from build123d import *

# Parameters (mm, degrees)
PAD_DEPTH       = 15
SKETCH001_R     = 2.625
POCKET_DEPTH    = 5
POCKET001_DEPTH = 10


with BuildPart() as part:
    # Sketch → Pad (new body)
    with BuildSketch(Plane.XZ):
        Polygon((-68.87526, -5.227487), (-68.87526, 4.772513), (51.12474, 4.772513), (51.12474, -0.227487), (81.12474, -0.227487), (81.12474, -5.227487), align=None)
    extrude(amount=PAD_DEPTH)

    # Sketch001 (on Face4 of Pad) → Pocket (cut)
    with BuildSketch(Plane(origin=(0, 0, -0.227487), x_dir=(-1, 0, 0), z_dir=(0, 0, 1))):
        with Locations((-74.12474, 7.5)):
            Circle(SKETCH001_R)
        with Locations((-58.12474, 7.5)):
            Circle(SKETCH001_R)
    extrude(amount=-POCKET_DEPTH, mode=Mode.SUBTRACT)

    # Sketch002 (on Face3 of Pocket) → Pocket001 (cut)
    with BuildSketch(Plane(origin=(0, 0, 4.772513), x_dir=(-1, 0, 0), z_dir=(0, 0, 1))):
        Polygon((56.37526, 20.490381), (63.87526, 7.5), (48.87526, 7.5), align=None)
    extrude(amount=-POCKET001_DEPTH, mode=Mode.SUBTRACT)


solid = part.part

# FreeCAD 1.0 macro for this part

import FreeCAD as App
import Part
import Sketcher

V = App.Vector
Q = App.Units.Quantity


def add_polygon(sketch, points):
    """Adds a closed chain of lines whose ends are joined by coincident constraints."""
    first, n = sketch.GeometryCount, len(points)
    for a, b in zip(points, points[1:] + points[:1]):
        sketch.addGeometry(Part.LineSegment(App.Vector(*a, 0), App.Vector(*b, 0)), False)
    for i in range(n):
        sketch.addConstraint(Sketcher.Constraint("Coincident", first + i, 2, first + (i + 1) % n, 1))

doc = App.newDocument("Part")
body = doc.addObject("PartDesign::Body", "Body")

# Sketch on XZ plane
sketch1 = doc.addObject("Sketcher::SketchObject", "Sketch")
body.addObject(sketch1)
sketch1.AttachmentSupport = (doc.XZ_Plane, [""])
sketch1.MapMode = "FlatFace"
add_polygon(sketch1, [(-69, 5), (-69, -5), (81, -5), (81, 0), (51, 0), (51, 5)])  # lines 0-5
sketch1.addConstraint(Sketcher.Constraint("Vertical", 0))
sketch1.addConstraint(Sketcher.Constraint("Horizontal", 1))
sketch1.addConstraint(Sketcher.Constraint("Vertical", 2))
sketch1.addConstraint(Sketcher.Constraint("Horizontal", 3))
sketch1.addConstraint(Sketcher.Constraint("Vertical", 4))
sketch1.addConstraint(Sketcher.Constraint("Horizontal", 5))
sketch1.addConstraint(Sketcher.Constraint("Equal", 2, 4))
sketch1.addConstraint(Sketcher.Constraint("DistanceX", 1, 1, 1, 2, Q("150 mm")))
sketch1.addConstraint(Sketcher.Constraint("DistanceX", 3, 2, 3, 1, Q("30 mm")))
sketch1.addConstraint(Sketcher.Constraint("DistanceY", 0, 2, 0, 1, Q("10 mm")))
sketch1.addConstraint(Sketcher.Constraint("DistanceX", 0, 2, -1, 1, Q("68.87526 mm")))
sketch1.addConstraint(Sketcher.Constraint("DistanceY", 0, 2, -1, 1, Q("5.227487 mm")))
pad1 = doc.addObject("PartDesign::Pad", "Pad")
body.addObject(pad1)
pad1.Profile = sketch1
pad1.Length = 15

# Sketch on XY plane
sketch2 = doc.addObject("Sketcher::SketchObject", "Sketch001")
body.addObject(sketch2)
sketch2.AttachmentSupport = (doc.XY_Plane, [""])
sketch2.MapMode = "FlatFace"
sketch2.AttachmentOffset = App.Placement(V(0, 0, -0.227487), App.Rotation())
sketch2.addGeometry(Part.Circle(V(74.1, -7.5, 0), V(0, 0, 1), 2.6), False)
sketch2.addGeometry(Part.Circle(V(58.1, -7.5, 0), V(0, 0, 1), 2.6), False)
sketch2.addConstraint(Sketcher.Constraint("Equal", 0, 1))
sketch2.addConstraint(Sketcher.Constraint("Horizontal", 0, 3, 1, 3))
sketch2.addConstraint(Sketcher.Constraint("Diameter", 0, Q("5.25 mm")))
sketch2.addConstraint(Sketcher.Constraint("DistanceX", 1, 3, 0, 3, Q("16 mm")))
sketch2.addConstraint(Sketcher.Constraint("DistanceY", 0, 3, -1, 1, Q("7.5 mm")))
sketch2.addConstraint(Sketcher.Constraint("DistanceX", -1, 1, 0, 3, Q("74.12474 mm")))
pocket1 = doc.addObject("PartDesign::Pocket", "Pocket")
body.addObject(pocket1)
pocket1.Profile = sketch2
pocket1.Length = 5

# Sketch on XY plane
sketch3 = doc.addObject("Sketcher::SketchObject", "Sketch002")
body.addObject(sketch3)
sketch3.AttachmentSupport = (doc.XY_Plane, [""])
sketch3.MapMode = "FlatFace"
sketch3.AttachmentOffset = App.Placement(V(0, 0, 4.772513), App.Rotation())
add_polygon(sketch3, [(-64, -8), (-56, -20), (-49, -8)])  # lines 0-2
sketch3.addConstraint(Sketcher.Constraint("Horizontal", 2))
sketch3.addConstraint(Sketcher.Constraint("Equal", 0, 1))
sketch3.addConstraint(Sketcher.Constraint("DistanceX", 2, 2, 2, 1, Q("15 mm")))
sketch3.addConstraint(Sketcher.Constraint("Angle", 0, Q("-60 deg")))
sketch3.addConstraint(Sketcher.Constraint("DistanceY", 1, 2, -1, 1, Q("7.5 mm")))
sketch3.addConstraint(Sketcher.Constraint("DistanceX", 0, 2, -1, 1, Q("56.37526 mm")))
pocket2 = doc.addObject("PartDesign::Pocket", "Pocket001")
body.addObject(pocket2)
pocket2.Profile = sketch3
pocket2.Length = 10

doc.recompute()
